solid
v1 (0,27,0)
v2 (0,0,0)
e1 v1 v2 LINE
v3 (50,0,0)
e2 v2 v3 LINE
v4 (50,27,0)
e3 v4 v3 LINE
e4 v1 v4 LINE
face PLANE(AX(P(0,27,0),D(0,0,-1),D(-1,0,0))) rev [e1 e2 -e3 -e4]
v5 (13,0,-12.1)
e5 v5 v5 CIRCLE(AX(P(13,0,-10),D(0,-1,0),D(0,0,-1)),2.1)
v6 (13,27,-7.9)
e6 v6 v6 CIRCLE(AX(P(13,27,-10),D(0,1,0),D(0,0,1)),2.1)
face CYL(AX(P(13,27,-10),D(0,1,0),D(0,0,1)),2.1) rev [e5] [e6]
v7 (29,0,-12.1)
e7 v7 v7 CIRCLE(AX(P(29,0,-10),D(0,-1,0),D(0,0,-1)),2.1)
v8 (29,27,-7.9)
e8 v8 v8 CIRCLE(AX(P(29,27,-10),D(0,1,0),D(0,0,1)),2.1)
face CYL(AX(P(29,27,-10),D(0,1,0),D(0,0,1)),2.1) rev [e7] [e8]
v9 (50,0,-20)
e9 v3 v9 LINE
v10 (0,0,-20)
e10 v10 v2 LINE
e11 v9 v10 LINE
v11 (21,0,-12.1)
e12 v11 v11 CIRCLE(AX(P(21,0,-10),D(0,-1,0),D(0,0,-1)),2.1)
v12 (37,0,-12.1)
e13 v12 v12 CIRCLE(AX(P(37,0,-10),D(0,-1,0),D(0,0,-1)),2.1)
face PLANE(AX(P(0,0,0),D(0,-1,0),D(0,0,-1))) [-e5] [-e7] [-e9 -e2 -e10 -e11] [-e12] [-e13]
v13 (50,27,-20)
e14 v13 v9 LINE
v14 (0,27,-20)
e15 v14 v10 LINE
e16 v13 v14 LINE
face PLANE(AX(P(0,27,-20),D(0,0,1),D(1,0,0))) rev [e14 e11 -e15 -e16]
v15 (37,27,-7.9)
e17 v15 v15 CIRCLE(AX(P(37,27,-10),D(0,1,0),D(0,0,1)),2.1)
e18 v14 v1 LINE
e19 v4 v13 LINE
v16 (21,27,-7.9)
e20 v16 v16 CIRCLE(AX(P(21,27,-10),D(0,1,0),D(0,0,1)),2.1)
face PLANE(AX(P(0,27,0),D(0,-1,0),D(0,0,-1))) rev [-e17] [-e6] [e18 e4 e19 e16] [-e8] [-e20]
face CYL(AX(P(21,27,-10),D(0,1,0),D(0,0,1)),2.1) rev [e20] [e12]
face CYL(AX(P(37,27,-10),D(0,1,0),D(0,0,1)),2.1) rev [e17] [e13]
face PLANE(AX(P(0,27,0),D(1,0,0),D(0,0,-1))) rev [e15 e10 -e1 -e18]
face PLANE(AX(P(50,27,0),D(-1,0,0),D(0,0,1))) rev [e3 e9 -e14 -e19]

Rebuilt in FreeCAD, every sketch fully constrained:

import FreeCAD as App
import Part
import Sketcher

doc = App.newDocument("Part")
body = doc.addObject("PartDesign::Body", "Body")

# Sketch on XZ plane
sketch1 = body.newObject("Sketcher::SketchObject", "Sketch")
sketch1.AttachmentSupport = (doc.getObject("XZ_Plane"), [""])
sketch1.MapMode = "FlatFace"
sketch1.addGeometry(Part.LineSegment(App.Vector(0, -20, 0), App.Vector(0, 0, 0)), False)
sketch1.addGeometry(Part.LineSegment(App.Vector(0, 0, 0), App.Vector(50, 0, 0)), False)
sketch1.addGeometry(Part.LineSegment(App.Vector(50, 0, 0), App.Vector(50, -20, 0)), False)
sketch1.addGeometry(Part.LineSegment(App.Vector(50, -20, 0), App.Vector(0, -20, 0)), False)
sketch1.addConstraint(Sketcher.Constraint("Coincident", 0, 2, 1, 1))
sketch1.addConstraint(Sketcher.Constraint("Coincident", 1, 2, 2, 1))
sketch1.addConstraint(Sketcher.Constraint("Coincident", 2, 2, 3, 1))
sketch1.addConstraint(Sketcher.Constraint("Coincident", 3, 2, 0, 1))
sketch1.addConstraint(Sketcher.Constraint("Vertical", 0))
sketch1.addConstraint(Sketcher.Constraint("Horizontal", 1))
sketch1.addConstraint(Sketcher.Constraint("Vertical", 2))
sketch1.addConstraint(Sketcher.Constraint("Horizontal", 3))
sketch1.addConstraint(Sketcher.Constraint("Coincident", 0, 2, -1, 1))
sketch1.addConstraint(Sketcher.Constraint("DistanceX", 1, 1, 1, 2, 50.0))
sketch1.addConstraint(Sketcher.Constraint("DistanceY", 0, 1, 0, 2, 20.0))
pad1 = body.newObject("PartDesign::Pad", "Pad")
pad1.Profile = sketch1
pad1.Length = 27
pad1.Reversed = True

# Sketch on XZ plane
sketch2 = body.newObject("Sketcher::SketchObject", "Sketch001")
sketch2.AttachmentSupport = (doc.getObject("XZ_Plane"), [""])
sketch2.MapMode = "FlatFace"
sketch2.AttachmentOffset = App.Placement(App.Vector(0, 0, -27), App.Rotation())
sketch2.addGeometry(Part.Circle(App.Vector(37, -10, 0), App.Vector(0, 0, 1), 2.1), False)
sketch2.addGeometry(Part.Circle(App.Vector(13, -10, 0), App.Vector(0, 0, 1), 2.1), False)
sketch2.addGeometry(Part.Circle(App.Vector(21, -10, 0), App.Vector(0, 0, 1), 2.1), False)
sketch2.addGeometry(Part.Circle(App.Vector(29, -10, 0), App.Vector(0, 0, 1), 2.1), False)
sketch2.addConstraint(Sketcher.Constraint("Equal", 0, 1))
sketch2.addConstraint(Sketcher.Constraint("Equal", 1, 2))
sketch2.addConstraint(Sketcher.Constraint("Equal", 2, 3))
sketch2.addConstraint(Sketcher.Constraint("Horizontal", 0, 3, 1, 3))
sketch2.addConstraint(Sketcher.Constraint("Horizontal", 1, 3, 2, 3))
sketch2.addConstraint(Sketcher.Constraint("Horizontal", 2, 3, 3, 3))
sketch2.addConstraint(Sketcher.Constraint("Diameter", 0, 4.2))
sketch2.addConstraint(Sketcher.Constraint("DistanceX", -1, 1, 0, 3, 37.0))
sketch2.addConstraint(Sketcher.Constraint("DistanceY", 0, 3, -1, 1, 10.0))
sketch2.addConstraint(Sketcher.Constraint("DistanceX", -1, 1, 1, 3, 13.0))
sketch2.addConstraint(Sketcher.Constraint("DistanceX", -1, 1, 2, 3, 21.0))
sketch2.addConstraint(Sketcher.Constraint("DistanceX", -1, 1, 3, 3, 29.0))
doc.recompute()
hole = body.newObject("PartDesign::Hole", "Hole")
hole.Profile = sketch2
hole.ThreadType = "None"
hole.Diameter = 4.2
hole.DepthType = "ThroughAll"
hole.Reversed = True

doc.recompute()
